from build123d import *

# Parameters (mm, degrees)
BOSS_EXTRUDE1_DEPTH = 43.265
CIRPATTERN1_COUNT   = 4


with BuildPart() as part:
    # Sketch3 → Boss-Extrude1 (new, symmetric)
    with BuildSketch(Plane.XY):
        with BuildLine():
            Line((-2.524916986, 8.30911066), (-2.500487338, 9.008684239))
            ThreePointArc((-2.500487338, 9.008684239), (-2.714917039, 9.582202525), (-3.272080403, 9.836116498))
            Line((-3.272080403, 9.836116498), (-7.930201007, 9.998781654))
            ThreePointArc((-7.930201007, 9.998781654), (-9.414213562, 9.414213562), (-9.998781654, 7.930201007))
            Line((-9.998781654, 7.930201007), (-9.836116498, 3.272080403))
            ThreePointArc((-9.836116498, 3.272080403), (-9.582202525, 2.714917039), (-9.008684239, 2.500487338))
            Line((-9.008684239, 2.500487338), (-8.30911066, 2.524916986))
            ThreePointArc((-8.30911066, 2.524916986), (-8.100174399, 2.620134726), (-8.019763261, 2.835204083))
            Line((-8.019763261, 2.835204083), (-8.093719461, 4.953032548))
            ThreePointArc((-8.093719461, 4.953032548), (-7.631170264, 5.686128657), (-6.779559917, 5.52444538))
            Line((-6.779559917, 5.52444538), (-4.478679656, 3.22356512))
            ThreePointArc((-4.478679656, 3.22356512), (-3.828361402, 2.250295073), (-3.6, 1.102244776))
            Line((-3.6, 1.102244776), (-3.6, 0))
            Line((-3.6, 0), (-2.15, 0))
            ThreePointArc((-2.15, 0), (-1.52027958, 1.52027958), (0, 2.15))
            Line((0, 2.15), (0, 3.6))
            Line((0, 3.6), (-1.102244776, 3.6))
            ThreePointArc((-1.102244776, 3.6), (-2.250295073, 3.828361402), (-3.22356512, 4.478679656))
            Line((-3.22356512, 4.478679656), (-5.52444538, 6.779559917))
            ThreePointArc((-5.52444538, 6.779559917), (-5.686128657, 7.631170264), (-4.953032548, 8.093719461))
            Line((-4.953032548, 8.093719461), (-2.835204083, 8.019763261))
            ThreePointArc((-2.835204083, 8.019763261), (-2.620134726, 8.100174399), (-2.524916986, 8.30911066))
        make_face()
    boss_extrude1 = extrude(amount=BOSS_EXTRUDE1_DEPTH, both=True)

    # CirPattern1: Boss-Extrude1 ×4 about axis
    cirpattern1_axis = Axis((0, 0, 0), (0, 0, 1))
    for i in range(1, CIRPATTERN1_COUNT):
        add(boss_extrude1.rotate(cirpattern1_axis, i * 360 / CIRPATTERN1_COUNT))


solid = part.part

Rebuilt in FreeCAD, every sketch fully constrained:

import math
import FreeCAD as App
import Part
import Sketcher
from FreeCAD import Vector
Q = App.Units.Quantity

doc = App.newDocument("Part")
body = doc.addObject("PartDesign::Body", "Body")

sketch1 = doc.addObject("Sketcher::SketchObject", "Sketch")
body.addObject(sketch1)
sketch1.AttachmentSupport = (doc.XY_Plane, [""])
sketch1.MapMode = "FlatFace"
sketch1.addGeometry([
    Part.LineSegment(Vector(-2.52, 8.31, 0), Vector(-2.5, 9.01, 0)),
    Part.ArcOfCircle(Part.Circle(Vector(-3.3, 9.04, 0), Vector(0, 0, 1), 0.8), math.radians(-2), math.radians(88)),
    Part.LineSegment(Vector(-3.27, 9.84, 0), Vector(-7.93, 10, 0)),
    Part.ArcOfCircle(Part.Circle(Vector(-8, 8, 0), Vector(0, 0, 1), 2), math.radians(88), math.radians(182)),
    Part.LineSegment(Vector(-10, 7.93, 0), Vector(-9.84, 3.27, 0)),
    Part.ArcOfCircle(Part.Circle(Vector(-9.04, 3.3, 0), Vector(0, 0, 1), 0.8), math.radians(-178), math.radians(-88)),
    Part.LineSegment(Vector(-9.01, 2.5, 0), Vector(-8.31, 2.52, 0)),
    Part.ArcOfCircle(Part.Circle(Vector(-8.32, 2.82, 0), Vector(0, 0, 1), 0.3), math.radians(-88), math.radians(2)),
    Part.LineSegment(Vector(-8.02, 2.84, 0), Vector(-8.09, 4.95, 0)),
    Part.ArcOfCircle(Part.Circle(Vector(-7.32, 4.98, 0), Vector(0, 0, 1), 0.77), math.radians(45), math.radians(182)),
    Part.LineSegment(Vector(-6.78, 5.52, 0), Vector(-4.48, 3.22, 0)),
    Part.ArcOfCircle(Part.Circle(Vector(-6.6, 1.1, 0), Vector(0, 0, 1), 3), math.radians(0), math.radians(45)),
    Part.LineSegment(Vector(-3.6, 1.1, 0), Vector(-3.6, 0, 0)),
    Part.LineSegment(Vector(-3.6, 0, 0), Vector(-2.15, 0, 0)),
    Part.ArcOfCircle(Part.Circle(Vector(0, 0, 0), Vector(0, 0, 1), 2.15), math.radians(90), math.radians(180)),
    Part.LineSegment(Vector(0, 2.15, 0), Vector(0, 3.6, 0)),
    Part.LineSegment(Vector(0, 3.6, 0), Vector(-1.1, 3.6, 0)),
    Part.ArcOfCircle(Part.Circle(Vector(-1.1, 6.6, 0), Vector(0, 0, 1), 3), math.radians(-135), math.radians(-90)),
    Part.LineSegment(Vector(-3.22, 4.48, 0), Vector(-5.52, 6.78, 0)),
    Part.ArcOfCircle(Part.Circle(Vector(-4.98, 7.32, 0), Vector(0, 0, 1), 0.77), math.radians(88), math.radians(225)),
    Part.LineSegment(Vector(-4.95, 8.09, 0), Vector(-2.84, 8.02, 0)),
    Part.ArcOfCircle(Part.Circle(Vector(-2.82, 8.32, 0), Vector(0, 0, 1), 0.3), math.radians(-92), math.radians(-2)),
], False)
sketch1.addConstraint([
    Sketcher.Constraint("Tangent", 0, 2, 1, 1),
    Sketcher.Constraint("Tangent", 1, 2, 2, 1),
    Sketcher.Constraint("Tangent", 2, 2, 3, 1),
    Sketcher.Constraint("Tangent", 3, 2, 4, 1),
    Sketcher.Constraint("Tangent", 4, 2, 5, 1),
    Sketcher.Constraint("Tangent", 5, 2, 6, 1),
    Sketcher.Constraint("Tangent", 6, 2, 7, 1),
    Sketcher.Constraint("Tangent", 7, 2, 8, 1),
    Sketcher.Constraint("Tangent", 8, 2, 9, 2),
    Sketcher.Constraint("Tangent", 9, 1, 10, 1),
    Sketcher.Constraint("Tangent", 10, 2, 11, 2),
    Sketcher.Constraint("Tangent", 11, 1, 12, 1),
    Sketcher.Constraint("Coincident", 12, 2, 13, 1),
    Sketcher.Constraint("Coincident", 13, 2, 14, 2),
    Sketcher.Constraint("Coincident", 14, 1, 15, 1),
    Sketcher.Constraint("Coincident", 15, 2, 16, 1),
    Sketcher.Constraint("Tangent", 16, 2, 17, 2),
    Sketcher.Constraint("Tangent", 17, 1, 18, 1),
    Sketcher.Constraint("Tangent", 18, 2, 19, 2),
    Sketcher.Constraint("Tangent", 19, 1, 20, 1),
    Sketcher.Constraint("Tangent", 20, 2, 21, 1),
    Sketcher.Constraint("Tangent", 21, 2, 0, 1),
    Sketcher.Constraint("Vertical", 12),
    Sketcher.Constraint("Horizontal", 13),
    Sketcher.Constraint("Vertical", 15),
    Sketcher.Constraint("Horizontal", 16),
    Sketcher.Constraint("Coincident", 14, 3, -1, 1),
    Sketcher.Constraint("Equal", 1, 5),
    Sketcher.Constraint("Equal", 11, 17),
    Sketcher.Constraint("Equal", 9, 19),
    Sketcher.Constraint("Equal", 7, 21),
    Sketcher.Constraint("PointOnObject", 12, 2, -1),
    Sketcher.Constraint("PointOnObject", 14, 1, -2),
    Sketcher.Constraint("Perpendicular", 0, 2),
    Sketcher.Constraint("Perpendicular", 4, 6),
    Sketcher.Constraint("Perpendicular", 6, 8),
    Sketcher.Constraint("Parallel", 10, 18),
    Sketcher.Constraint("Parallel", 2, 20),
    Sketcher.Constraint("Equal", 16, 12),
    Sketcher.Constraint("Equal", 13, 15),
    Sketcher.Constraint("Equal", 2, 4),
    Sketcher.Constraint("Equal", 0, 6),
    Sketcher.Constraint("Equal", 10, 18),
    Sketcher.Constraint("Equal", 8, 20),
    Sketcher.Constraint("Radius", 3, Q("2 mm")),
    Sketcher.Constraint("Radius", 11, Q("3 mm")),
    Sketcher.Constraint("Radius", 1, Q("0.8 mm")),
    Sketcher.Constraint("Radius", 7, Q("0.3 mm")),
    Sketcher.Constraint("Angle", 0, Q("88 deg")),
    Sketcher.Constraint("Angle", 4, Q("-88 deg")),
    Sketcher.Constraint("Radius", 14, Q("2.15 mm")),
    Sketcher.Constraint("DistanceX", 3, 3, -1, 1, Q("8 mm")),
    Sketcher.Constraint("Distance", 0, Q("0.7 mm")),
    Sketcher.Constraint("DistanceX", 13, 1, 13, 2, Q("1.45 mm")),
    Sketcher.Constraint("DistanceX", 1, 3, -1, 1, Q("3.3 mm")),
    Sketcher.Constraint("Radius", 9, Q("0.770092 mm")),
    Sketcher.Constraint("DistanceY", 7, 3, 8, 2, Q("2.128298 mm")),
])
pad1 = doc.addObject("PartDesign::Pad", "Pad")
body.addObject(pad1)
pad1.Profile = sketch1
pad1.Length = 86.53
pad1.Midplane = True
doc.recompute()

polarpattern = doc.addObject("PartDesign::PolarPattern", "PolarPattern")
body.addObject(polarpattern)
polarpattern.Originals = [pad1]
polarpattern.Axis = (doc.Z_Axis, [""])
polarpattern.Angle = 360
polarpattern.Occurrences = 4
body.Tip = polarpattern

doc.recompute()
